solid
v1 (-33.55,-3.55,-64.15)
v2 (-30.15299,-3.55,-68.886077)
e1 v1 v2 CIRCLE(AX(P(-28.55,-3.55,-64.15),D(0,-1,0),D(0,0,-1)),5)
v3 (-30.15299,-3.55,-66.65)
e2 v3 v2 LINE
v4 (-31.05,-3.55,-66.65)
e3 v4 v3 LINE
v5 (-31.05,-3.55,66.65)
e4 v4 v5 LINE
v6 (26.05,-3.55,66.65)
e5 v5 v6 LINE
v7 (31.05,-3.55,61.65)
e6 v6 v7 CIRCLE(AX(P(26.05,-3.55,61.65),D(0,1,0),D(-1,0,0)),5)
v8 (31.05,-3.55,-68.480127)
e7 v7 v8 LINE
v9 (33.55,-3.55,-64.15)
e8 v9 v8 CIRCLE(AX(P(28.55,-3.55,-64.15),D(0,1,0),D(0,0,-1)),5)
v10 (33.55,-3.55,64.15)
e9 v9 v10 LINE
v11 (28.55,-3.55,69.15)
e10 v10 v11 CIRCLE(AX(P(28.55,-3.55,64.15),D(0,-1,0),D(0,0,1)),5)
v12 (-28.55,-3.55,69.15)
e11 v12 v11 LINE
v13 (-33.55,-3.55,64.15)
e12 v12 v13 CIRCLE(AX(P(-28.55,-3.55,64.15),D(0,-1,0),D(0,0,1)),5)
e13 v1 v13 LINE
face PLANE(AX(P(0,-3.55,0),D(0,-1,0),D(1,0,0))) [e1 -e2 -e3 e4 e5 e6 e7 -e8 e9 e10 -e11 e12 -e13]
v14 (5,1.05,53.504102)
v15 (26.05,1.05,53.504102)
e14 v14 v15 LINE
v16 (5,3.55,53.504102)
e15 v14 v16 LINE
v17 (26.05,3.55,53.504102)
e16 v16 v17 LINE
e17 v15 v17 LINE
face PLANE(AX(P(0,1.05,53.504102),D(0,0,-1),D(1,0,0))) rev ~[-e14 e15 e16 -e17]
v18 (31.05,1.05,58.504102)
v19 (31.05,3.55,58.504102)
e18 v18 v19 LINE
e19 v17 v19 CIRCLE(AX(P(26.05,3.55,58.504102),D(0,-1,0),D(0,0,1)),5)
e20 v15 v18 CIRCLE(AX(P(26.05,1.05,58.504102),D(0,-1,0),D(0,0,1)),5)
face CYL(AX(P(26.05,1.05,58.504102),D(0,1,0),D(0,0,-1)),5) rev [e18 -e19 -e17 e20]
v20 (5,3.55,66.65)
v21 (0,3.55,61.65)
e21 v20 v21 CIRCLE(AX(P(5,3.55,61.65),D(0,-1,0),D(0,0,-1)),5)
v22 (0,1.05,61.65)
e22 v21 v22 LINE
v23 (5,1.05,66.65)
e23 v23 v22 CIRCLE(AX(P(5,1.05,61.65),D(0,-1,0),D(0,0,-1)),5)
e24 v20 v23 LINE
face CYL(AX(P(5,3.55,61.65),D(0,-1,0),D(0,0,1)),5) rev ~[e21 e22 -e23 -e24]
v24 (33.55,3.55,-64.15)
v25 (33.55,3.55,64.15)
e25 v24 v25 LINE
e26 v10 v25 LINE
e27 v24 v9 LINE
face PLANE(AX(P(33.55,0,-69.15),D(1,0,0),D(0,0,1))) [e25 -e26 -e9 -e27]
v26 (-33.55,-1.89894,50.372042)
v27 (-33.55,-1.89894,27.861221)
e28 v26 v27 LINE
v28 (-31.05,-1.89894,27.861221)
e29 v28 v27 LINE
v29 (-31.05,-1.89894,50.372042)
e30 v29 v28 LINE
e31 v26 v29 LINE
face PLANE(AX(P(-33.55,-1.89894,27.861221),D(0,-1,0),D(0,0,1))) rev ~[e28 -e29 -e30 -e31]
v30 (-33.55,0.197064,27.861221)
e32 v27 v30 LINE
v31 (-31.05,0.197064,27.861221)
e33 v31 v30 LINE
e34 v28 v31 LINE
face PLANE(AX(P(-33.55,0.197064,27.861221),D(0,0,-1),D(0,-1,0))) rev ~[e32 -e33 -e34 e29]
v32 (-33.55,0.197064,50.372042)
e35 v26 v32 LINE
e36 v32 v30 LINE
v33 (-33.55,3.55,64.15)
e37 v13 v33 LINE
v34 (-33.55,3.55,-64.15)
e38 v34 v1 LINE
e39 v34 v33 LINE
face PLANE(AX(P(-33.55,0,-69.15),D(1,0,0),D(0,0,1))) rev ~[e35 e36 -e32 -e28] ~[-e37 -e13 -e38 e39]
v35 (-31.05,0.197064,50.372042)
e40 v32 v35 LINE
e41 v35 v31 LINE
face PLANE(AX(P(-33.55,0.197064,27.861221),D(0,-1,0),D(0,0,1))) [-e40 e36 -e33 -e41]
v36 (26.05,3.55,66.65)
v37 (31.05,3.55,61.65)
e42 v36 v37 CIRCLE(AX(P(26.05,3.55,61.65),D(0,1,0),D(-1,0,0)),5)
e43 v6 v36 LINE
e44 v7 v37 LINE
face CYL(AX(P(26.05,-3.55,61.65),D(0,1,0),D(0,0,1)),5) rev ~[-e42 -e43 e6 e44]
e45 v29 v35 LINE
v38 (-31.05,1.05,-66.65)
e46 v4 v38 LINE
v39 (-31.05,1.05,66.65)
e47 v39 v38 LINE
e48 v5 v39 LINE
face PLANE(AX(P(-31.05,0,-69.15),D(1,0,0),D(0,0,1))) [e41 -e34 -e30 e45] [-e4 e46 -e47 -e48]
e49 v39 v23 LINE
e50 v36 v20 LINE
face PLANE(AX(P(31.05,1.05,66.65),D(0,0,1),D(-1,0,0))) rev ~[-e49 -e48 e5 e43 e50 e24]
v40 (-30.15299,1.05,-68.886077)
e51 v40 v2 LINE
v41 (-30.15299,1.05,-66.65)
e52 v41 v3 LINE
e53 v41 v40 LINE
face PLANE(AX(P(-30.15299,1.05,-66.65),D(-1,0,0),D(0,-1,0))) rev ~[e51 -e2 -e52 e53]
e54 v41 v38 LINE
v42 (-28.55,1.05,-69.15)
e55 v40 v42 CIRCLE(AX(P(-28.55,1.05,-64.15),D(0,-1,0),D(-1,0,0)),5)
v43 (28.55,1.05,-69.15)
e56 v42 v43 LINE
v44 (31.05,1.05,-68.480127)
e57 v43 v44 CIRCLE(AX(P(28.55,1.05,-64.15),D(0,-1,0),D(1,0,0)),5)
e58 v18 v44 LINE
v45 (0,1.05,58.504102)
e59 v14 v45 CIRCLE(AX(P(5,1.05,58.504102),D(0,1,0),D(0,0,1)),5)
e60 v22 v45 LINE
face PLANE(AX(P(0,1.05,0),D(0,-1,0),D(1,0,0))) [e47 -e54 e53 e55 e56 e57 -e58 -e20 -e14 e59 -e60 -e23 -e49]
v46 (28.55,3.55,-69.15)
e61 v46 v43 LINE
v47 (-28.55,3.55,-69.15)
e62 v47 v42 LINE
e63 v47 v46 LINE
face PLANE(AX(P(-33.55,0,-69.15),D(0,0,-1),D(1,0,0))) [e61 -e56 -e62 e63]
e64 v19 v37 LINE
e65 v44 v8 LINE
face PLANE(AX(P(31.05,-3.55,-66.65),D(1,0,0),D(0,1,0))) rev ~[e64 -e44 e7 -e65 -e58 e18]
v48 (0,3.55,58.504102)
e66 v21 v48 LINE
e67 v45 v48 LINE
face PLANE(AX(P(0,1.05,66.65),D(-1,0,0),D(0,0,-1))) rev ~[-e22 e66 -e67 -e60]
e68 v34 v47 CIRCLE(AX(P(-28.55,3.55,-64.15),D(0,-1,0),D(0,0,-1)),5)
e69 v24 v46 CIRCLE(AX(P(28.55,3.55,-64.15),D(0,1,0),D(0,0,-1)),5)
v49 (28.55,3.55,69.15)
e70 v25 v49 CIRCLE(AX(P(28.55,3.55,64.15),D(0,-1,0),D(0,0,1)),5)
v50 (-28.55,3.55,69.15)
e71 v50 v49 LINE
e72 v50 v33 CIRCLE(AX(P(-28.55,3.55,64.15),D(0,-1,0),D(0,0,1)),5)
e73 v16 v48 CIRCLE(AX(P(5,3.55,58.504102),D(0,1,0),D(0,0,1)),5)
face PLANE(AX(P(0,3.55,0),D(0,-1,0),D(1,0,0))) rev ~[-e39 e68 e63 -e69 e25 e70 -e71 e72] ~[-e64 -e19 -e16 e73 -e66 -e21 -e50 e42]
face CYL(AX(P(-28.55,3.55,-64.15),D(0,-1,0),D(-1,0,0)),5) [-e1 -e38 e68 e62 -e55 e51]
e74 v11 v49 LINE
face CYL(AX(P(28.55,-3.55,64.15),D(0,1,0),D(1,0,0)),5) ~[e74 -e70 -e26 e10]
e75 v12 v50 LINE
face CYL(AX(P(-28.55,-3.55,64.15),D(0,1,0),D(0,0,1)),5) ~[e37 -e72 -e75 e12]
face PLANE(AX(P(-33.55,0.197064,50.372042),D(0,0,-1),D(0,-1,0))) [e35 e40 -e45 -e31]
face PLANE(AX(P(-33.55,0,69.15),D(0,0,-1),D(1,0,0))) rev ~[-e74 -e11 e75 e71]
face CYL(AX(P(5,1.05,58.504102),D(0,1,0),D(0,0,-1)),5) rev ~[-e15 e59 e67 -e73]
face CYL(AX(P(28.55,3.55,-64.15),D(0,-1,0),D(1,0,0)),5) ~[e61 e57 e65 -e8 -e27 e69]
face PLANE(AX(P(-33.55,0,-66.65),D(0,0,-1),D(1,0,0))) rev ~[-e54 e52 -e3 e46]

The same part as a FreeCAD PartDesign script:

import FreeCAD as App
import Part
import Sketcher
Q = App.Units.Quantity


def edges_at(feature, points):
    """Names of the edges that pass closest to the given points."""
    edges = feature.Shape.Edges
    near = lambda p: min(range(len(edges)), key=lambda i: edges[i].distToShape(Part.Vertex(*p))[0])
    return sorted({f"Edge{near(p) + 1}" for p in points})


def faces_at(feature, points):
    """Names of the faces that lie closest to the given points."""
    faces = feature.Shape.Faces
    near = lambda p: min(range(len(faces)), key=lambda i: faces[i].distToShape(Part.Vertex(*p))[0])
    return sorted({f"Face{near(p) + 1}" for p in points})

doc = App.newDocument("Part")
body = doc.addObject("PartDesign::Body", "Body")

# Sketch on XZ plane
sketch1 = body.newObject("Sketcher::SketchObject", "Sketch")
sketch1.AttachmentSupport = (doc.getObject("XZ_Plane"), [""])
sketch1.MapMode = "FlatFace"
sketch1.addGeometry([
    Part.LineSegment(App.Vector(-34, 69, 0), App.Vector(-34, -69, 0)),
    Part.LineSegment(App.Vector(-34, -69, 0), App.Vector(34, -69, 0)),
    Part.LineSegment(App.Vector(34, -69, 0), App.Vector(34, 69, 0)),
    Part.LineSegment(App.Vector(34, 69, 0), App.Vector(-34, 69, 0)),
], False)
sketch1.addConstraint([
    Sketcher.Constraint("Coincident", 0, 2, 1, 1),
    Sketcher.Constraint("Coincident", 1, 2, 2, 1),
    Sketcher.Constraint("Coincident", 2, 2, 3, 1),
    Sketcher.Constraint("Coincident", 3, 2, 0, 1),
    Sketcher.Constraint("Vertical", 0),
    Sketcher.Constraint("Horizontal", 1),
    Sketcher.Constraint("Vertical", 2),
    Sketcher.Constraint("Horizontal", 3),
    Sketcher.Constraint("Symmetric", 0, 2, 2, 2, -1, 1),
    Sketcher.Constraint("DistanceX", 1, 1, 1, 2, Q("67.1 mm")),
    Sketcher.Constraint("DistanceY", 0, 2, 0, 1, Q("138.3 mm")),
])
pad1 = body.newObject("PartDesign::Pad", "Pad")
pad1.Profile = sketch1
pad1.Length = 7.1
pad1.Midplane = True
doc.recompute()

thickness = body.newObject("PartDesign::Thickness", "Thickness")
thickness.Base = (pad1, faces_at(pad1, [(0, -3.55, 0)]))
thickness.Value = 2.5
thickness.Reversed = True
thickness.Join = "Arc"
doc.recompute()

fillet = body.newObject("PartDesign::Fillet", "Fillet")
fillet.Base = (thickness, edges_at(thickness, [
    (-33.55, 0, 69.15),
    (33.55, 0, 69.15),
    (33.55, 0, -69.15),
    (-33.55, 0, -69.15),
]))
fillet.Radius = 5

# Sketch on XZ plane
sketch2 = body.newObject("Sketcher::SketchObject", "Sketch001")
sketch2.AttachmentSupport = (doc.getObject("XZ_Plane"), [""])
sketch2.MapMode = "FlatFace"
sketch2.AttachmentOffset = App.Placement(App.Vector(0, 0, -1.05), App.Rotation())
sketch2.addGeometry([
    Part.LineSegment(App.Vector(31, 54, 0), App.Vector(31, 67, 0)),
    Part.LineSegment(App.Vector(31, 67, 0), App.Vector(0, 67, 0)),
    Part.LineSegment(App.Vector(0, 67, 0), App.Vector(0, 54, 0)),
    Part.LineSegment(App.Vector(0, 54, 0), App.Vector(31, 54, 0)),
], False)
sketch2.addConstraint([
    Sketcher.Constraint("Coincident", 0, 2, 1, 1),
    Sketcher.Constraint("Coincident", 1, 2, 2, 1),
    Sketcher.Constraint("Coincident", 2, 2, 3, 1),
    Sketcher.Constraint("Coincident", 3, 2, 0, 1),
    Sketcher.Constraint("Vertical", 0),
    Sketcher.Constraint("Horizontal", 1),
    Sketcher.Constraint("Vertical", 2),
    Sketcher.Constraint("Horizontal", 3),
    Sketcher.Constraint("PointOnObject", 1, 2, -2),
    Sketcher.Constraint("DistanceX", 1, 2, 1, 1, Q("31.05 mm")),
    Sketcher.Constraint("DistanceY", -1, 1, 0, 2, Q("66.65 mm")),
    Sketcher.Constraint("DistanceY", 0, 1, 0, 2, Q("13.145898 mm")),
])
pocket1 = body.newObject("PartDesign::Pocket", "Pocket")
pocket1.Profile = sketch2
pocket1.Length = 25
pocket1.Midplane = True
doc.recompute()

fillet2 = body.newObject("PartDesign::Fillet", "Fillet001")
fillet2.Base = (pocket1, edges_at(pocket1, [
    (0, 2.3, 53.504),
    (0, 2.3, 66.65),
    (31.05, 0, 66.65),
    (31.05, 2.3, 53.504),
]))
fillet2.Radius = 5

# Sketch on XY plane
sketch3 = body.newObject("Sketcher::SketchObject", "Sketch002")
sketch3.AttachmentSupport = (doc.getObject("XY_Plane"), [""])
sketch3.MapMode = "FlatFace"
sketch3.AttachmentOffset = App.Placement(App.Vector(0, 0, -66.65), App.Rotation())
sketch3.addGeometry([
    Part.LineSegment(App.Vector(-30.2, 1.1, 0), App.Vector(-30.2, -3.5, 0)),
    Part.LineSegment(App.Vector(-30.2, -3.5, 0), App.Vector(31.1, -3.5, 0)),
    Part.LineSegment(App.Vector(31.1, -3.5, 0), App.Vector(31.1, 1.1, 0)),
    Part.LineSegment(App.Vector(31.1, 1.1, 0), App.Vector(-30.2, 1.1, 0)),
], False)
sketch3.addConstraint([
    Sketcher.Constraint("Coincident", 0, 2, 1, 1),
    Sketcher.Constraint("Coincident", 1, 2, 2, 1),
    Sketcher.Constraint("Coincident", 2, 2, 3, 1),
    Sketcher.Constraint("Coincident", 3, 2, 0, 1),
    Sketcher.Constraint("Vertical", 0),
    Sketcher.Constraint("Horizontal", 1),
    Sketcher.Constraint("Vertical", 2),
    Sketcher.Constraint("Horizontal", 3),
    Sketcher.Constraint("DistanceY", 0, 2, 0, 1, Q("4.6 mm")),
    Sketcher.Constraint("DistanceY", 0, 2, -1, 1, Q("3.55 mm")),
    Sketcher.Constraint("DistanceX", -1, 1, 1, 2, Q("31.05 mm")),
    Sketcher.Constraint("DistanceX", 1, 1, 1, 2, Q("61.20299 mm")),
])
pocket2 = body.newObject("PartDesign::Pocket", "Pocket001")
pocket2.Profile = sketch3
pocket2.Length = 25

# Sketch on YZ plane
sketch4 = body.newObject("Sketcher::SketchObject", "Sketch003")
sketch4.AttachmentSupport = (doc.getObject("YZ_Plane"), [""])
sketch4.MapMode = "FlatFace"
sketch4.AttachmentOffset = App.Placement(App.Vector(0, 0, -33.55), App.Rotation())
sketch4.addGeometry([
    Part.LineSegment(App.Vector(0.2, 50.4, 0), App.Vector(0.2, 27.9, 0)),
    Part.LineSegment(App.Vector(0.2, 27.9, 0), App.Vector(-1.9, 27.9, 0)),
    Part.LineSegment(App.Vector(-1.9, 27.9, 0), App.Vector(-1.9, 50.4, 0)),
    Part.LineSegment(App.Vector(-1.9, 50.4, 0), App.Vector(0.2, 50.4, 0)),
], False)
sketch4.addConstraint([
    Sketcher.Constraint("Coincident", 0, 2, 1, 1),
    Sketcher.Constraint("Coincident", 1, 2, 2, 1),
    Sketcher.Constraint("Coincident", 2, 2, 3, 1),
    Sketcher.Constraint("Coincident", 3, 2, 0, 1),
    Sketcher.Constraint("Vertical", 0),
    Sketcher.Constraint("Horizontal", 1),
    Sketcher.Constraint("Vertical", 2),
    Sketcher.Constraint("Horizontal", 3),
    Sketcher.Constraint("DistanceY", 0, 2, 0, 1, Q("22.510821 mm")),
    Sketcher.Constraint("DistanceX", 1, 2, 1, 1, Q("2.096004 mm")),
    Sketcher.Constraint("DistanceY", -1, 1, 0, 2, Q("27.861221 mm")),
    Sketcher.Constraint("DistanceX", 1, 2, -1, 1, Q("1.89894 mm")),
])
pocket3 = body.newObject("PartDesign::Pocket", "Pocket002")
pocket3.Profile = sketch4
pocket3.Length = 25
pocket3.Midplane = True

doc.recompute()
